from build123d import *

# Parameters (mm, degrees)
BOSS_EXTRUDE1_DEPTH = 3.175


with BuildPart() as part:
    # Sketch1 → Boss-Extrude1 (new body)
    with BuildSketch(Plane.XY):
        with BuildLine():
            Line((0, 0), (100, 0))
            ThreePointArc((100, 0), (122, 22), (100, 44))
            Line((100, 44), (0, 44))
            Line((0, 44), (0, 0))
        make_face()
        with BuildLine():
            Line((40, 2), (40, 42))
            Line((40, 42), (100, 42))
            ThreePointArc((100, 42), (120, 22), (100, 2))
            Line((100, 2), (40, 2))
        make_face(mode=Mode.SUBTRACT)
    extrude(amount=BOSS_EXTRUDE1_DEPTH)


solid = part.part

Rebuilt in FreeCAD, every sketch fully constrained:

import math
import FreeCAD as App
import Part
import Sketcher
from FreeCAD import Vector

doc = App.newDocument("Part")
body = doc.addObject("PartDesign::Body", "Body")

sketch1 = body.newObject("Sketcher::SketchObject", "Sketch")
sketch1.AttachmentSupport = (doc.getObject("XY_Plane"), [""])
sketch1.MapMode = "FlatFace"
sketch1.addGeometry(Part.LineSegment(Vector(0, 0, 0), Vector(100, 0, 0)), False)
sketch1.addGeometry(Part.ArcOfCircle(Part.Circle(Vector(100, 22, 0), Vector(0, 0, 1), 22), math.radians(-90), math.radians(90)), False)
sketch1.addGeometry(Part.LineSegment(Vector(100, 44, 0), Vector(0, 44, 0)), False)
sketch1.addGeometry(Part.LineSegment(Vector(0, 44, 0), Vector(0, 0, 0)), False)
sketch1.addGeometry(Part.LineSegment(Vector(100, 2, 0), Vector(40, 2, 0)), False)
sketch1.addGeometry(Part.LineSegment(Vector(40, 2, 0), Vector(40, 42, 0)), False)
sketch1.addGeometry(Part.LineSegment(Vector(40, 42, 0), Vector(100, 42, 0)), False)
sketch1.addGeometry(Part.ArcOfCircle(Part.Circle(Vector(100, 22, 0), Vector(0, 0, 1), 20), math.radians(-90), math.radians(90)), False)
sketch1.addConstraint(Sketcher.Constraint("Tangent", 0, 2, 1, 1))
sketch1.addConstraint(Sketcher.Constraint("Tangent", 1, 2, 2, 1))
sketch1.addConstraint(Sketcher.Constraint("Coincident", 2, 2, 3, 1))
sketch1.addConstraint(Sketcher.Constraint("Coincident", 3, 2, 0, 1))
sketch1.addConstraint(Sketcher.Constraint("Coincident", 4, 2, 5, 1))
sketch1.addConstraint(Sketcher.Constraint("Coincident", 5, 2, 6, 1))
sketch1.addConstraint(Sketcher.Constraint("Tangent", 6, 2, 7, 2))
sketch1.addConstraint(Sketcher.Constraint("Tangent", 7, 1, 4, 1))
sketch1.addConstraint(Sketcher.Constraint("Horizontal", 0))
sketch1.addConstraint(Sketcher.Constraint("Horizontal", 2))
sketch1.addConstraint(Sketcher.Constraint("Vertical", 3))
sketch1.addConstraint(Sketcher.Constraint("Horizontal", 4))
sketch1.addConstraint(Sketcher.Constraint("Vertical", 5))
sketch1.addConstraint(Sketcher.Constraint("Horizontal", 6))
sketch1.addConstraint(Sketcher.Constraint("Coincident", 3, 2, -1, 1))
sketch1.addConstraint(Sketcher.Constraint("Coincident", 7, 3, 1, 3))
sketch1.addConstraint(Sketcher.Constraint("Radius", 1, 22.0))
sketch1.addConstraint(Sketcher.Constraint("Radius", 7, 20.0))
sketch1.addConstraint(Sketcher.Constraint("DistanceX", 0, 1, 0, 2, 100.0))
sketch1.addConstraint(Sketcher.Constraint("DistanceX", 4, 2, 4, 1, 60.0))
pad1 = body.newObject("PartDesign::Pad", "Pad")
pad1.Profile = sketch1
pad1.Length = 3.175

doc.recompute()
